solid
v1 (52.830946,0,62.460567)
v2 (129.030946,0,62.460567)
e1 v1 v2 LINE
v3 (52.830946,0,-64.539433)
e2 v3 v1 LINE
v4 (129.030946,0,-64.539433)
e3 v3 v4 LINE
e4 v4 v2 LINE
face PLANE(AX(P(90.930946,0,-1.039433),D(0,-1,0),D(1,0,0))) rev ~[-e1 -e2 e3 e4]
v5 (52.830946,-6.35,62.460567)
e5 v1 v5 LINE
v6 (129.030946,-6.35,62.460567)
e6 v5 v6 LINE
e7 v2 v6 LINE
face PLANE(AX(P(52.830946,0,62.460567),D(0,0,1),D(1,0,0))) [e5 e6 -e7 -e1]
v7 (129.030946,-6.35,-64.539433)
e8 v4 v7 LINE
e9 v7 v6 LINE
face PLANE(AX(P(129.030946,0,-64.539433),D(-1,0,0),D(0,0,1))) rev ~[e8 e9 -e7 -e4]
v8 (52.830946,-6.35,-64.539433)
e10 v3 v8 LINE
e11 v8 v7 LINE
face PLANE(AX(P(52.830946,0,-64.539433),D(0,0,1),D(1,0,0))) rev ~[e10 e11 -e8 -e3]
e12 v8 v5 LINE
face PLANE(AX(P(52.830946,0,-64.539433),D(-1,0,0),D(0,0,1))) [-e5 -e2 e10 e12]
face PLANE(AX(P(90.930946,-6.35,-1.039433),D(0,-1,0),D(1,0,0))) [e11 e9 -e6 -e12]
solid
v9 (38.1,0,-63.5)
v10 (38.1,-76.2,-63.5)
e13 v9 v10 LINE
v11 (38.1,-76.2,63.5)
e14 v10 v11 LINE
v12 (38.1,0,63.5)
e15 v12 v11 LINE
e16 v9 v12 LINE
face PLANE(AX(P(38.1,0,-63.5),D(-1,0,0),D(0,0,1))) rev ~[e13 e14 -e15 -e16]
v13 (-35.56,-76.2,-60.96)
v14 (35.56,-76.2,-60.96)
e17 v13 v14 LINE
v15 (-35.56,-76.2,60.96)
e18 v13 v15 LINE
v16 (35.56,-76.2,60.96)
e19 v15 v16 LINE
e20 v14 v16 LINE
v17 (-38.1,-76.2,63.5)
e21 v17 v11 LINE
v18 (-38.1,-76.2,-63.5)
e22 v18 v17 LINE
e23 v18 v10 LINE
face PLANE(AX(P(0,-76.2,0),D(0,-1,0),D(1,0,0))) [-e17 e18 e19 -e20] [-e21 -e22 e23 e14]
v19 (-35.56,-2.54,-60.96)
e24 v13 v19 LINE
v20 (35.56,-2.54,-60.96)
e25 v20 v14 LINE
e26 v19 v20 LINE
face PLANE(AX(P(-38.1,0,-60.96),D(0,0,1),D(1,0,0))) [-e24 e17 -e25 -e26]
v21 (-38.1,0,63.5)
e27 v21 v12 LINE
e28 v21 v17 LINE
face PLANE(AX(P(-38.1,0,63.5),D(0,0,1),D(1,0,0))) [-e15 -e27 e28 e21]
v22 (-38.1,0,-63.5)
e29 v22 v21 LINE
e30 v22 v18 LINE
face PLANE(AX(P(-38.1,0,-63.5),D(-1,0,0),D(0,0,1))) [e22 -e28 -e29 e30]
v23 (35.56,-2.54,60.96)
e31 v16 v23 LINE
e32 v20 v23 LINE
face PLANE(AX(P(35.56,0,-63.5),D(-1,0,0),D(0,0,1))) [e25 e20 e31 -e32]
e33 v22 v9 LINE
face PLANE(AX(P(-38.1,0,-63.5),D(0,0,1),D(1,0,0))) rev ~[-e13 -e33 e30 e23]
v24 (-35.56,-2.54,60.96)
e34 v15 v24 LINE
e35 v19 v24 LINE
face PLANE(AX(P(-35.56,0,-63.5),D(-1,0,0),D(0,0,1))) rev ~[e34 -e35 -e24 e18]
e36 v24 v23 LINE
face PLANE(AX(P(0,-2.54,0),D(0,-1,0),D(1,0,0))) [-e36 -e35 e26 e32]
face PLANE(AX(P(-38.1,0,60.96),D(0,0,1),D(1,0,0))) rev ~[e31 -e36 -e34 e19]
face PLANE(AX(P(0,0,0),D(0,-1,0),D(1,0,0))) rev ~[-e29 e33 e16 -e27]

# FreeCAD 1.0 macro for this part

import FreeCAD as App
import Part
import Sketcher
Q = App.Units.Quantity


def faces_at(feature, points):
    """Names of the faces that lie closest to the given points."""
    faces = feature.Shape.Faces
    near = lambda p: min(range(len(faces)), key=lambda i: faces[i].distToShape(Part.Vertex(*p))[0])
    return sorted({f"Face{near(p) + 1}" for p in points})

doc = App.newDocument("Part")
body = doc.addObject("PartDesign::Body", "Body")

sketch1 = body.newObject("Sketcher::SketchObject", "Sketch")
sketch1.AttachmentSupport = (doc.getObject("XZ_Plane"), [""])
sketch1.MapMode = "FlatFace"
sketch1.addGeometry(Part.LineSegment(App.Vector(-38, 64, 0), App.Vector(-38, -64, 0)), False)
sketch1.addGeometry(Part.LineSegment(App.Vector(-38, -64, 0), App.Vector(38, -64, 0)), False)
sketch1.addGeometry(Part.LineSegment(App.Vector(38, -64, 0), App.Vector(38, 64, 0)), False)
sketch1.addGeometry(Part.LineSegment(App.Vector(38, 64, 0), App.Vector(-38, 64, 0)), False)
sketch1.addConstraint(Sketcher.Constraint("Coincident", 0, 2, 1, 1))
sketch1.addConstraint(Sketcher.Constraint("Coincident", 1, 2, 2, 1))
sketch1.addConstraint(Sketcher.Constraint("Coincident", 2, 2, 3, 1))
sketch1.addConstraint(Sketcher.Constraint("Coincident", 3, 2, 0, 1))
sketch1.addConstraint(Sketcher.Constraint("Vertical", 0))
sketch1.addConstraint(Sketcher.Constraint("Horizontal", 1))
sketch1.addConstraint(Sketcher.Constraint("Vertical", 2))
sketch1.addConstraint(Sketcher.Constraint("Horizontal", 3))
sketch1.addConstraint(Sketcher.Constraint("Symmetric", 0, 2, 2, 2, -1, 1))
sketch1.addConstraint(Sketcher.Constraint("DistanceX", 1, 1, 1, 2, Q("3 in")))
sketch1.addConstraint(Sketcher.Constraint("DistanceY", 0, 2, 0, 1, Q("5 in")))
pad1 = body.newObject("PartDesign::Pad", "Pad")
pad1.Profile = sketch1
pad1.Length = Q("3 in")
doc.recompute()

thickness = body.newObject("PartDesign::Thickness", "Thickness")
thickness.Base = (pad1, faces_at(pad1, [(0, -76.2, 0)]))
thickness.Value = Q("0.1 in")
thickness.Reversed = True
thickness.Join = "Arc"
body2 = doc.addObject("PartDesign::Body", "Body001")

sketch2 = body2.newObject("Sketcher::SketchObject", "Sketch001")
sketch2.AttachmentSupport = (doc.getObject("XZ_Plane001"), [""])
sketch2.MapMode = "FlatFace"
sketch2.addGeometry(Part.LineSegment(App.Vector(53, 62, 0), App.Vector(53, -65, 0)), False)
sketch2.addGeometry(Part.LineSegment(App.Vector(53, -65, 0), App.Vector(129, -65, 0)), False)
sketch2.addGeometry(Part.LineSegment(App.Vector(129, -65, 0), App.Vector(129, 62, 0)), False)
sketch2.addGeometry(Part.LineSegment(App.Vector(129, 62, 0), App.Vector(53, 62, 0)), False)
sketch2.addConstraint(Sketcher.Constraint("Coincident", 0, 2, 1, 1))
sketch2.addConstraint(Sketcher.Constraint("Coincident", 1, 2, 2, 1))
sketch2.addConstraint(Sketcher.Constraint("Coincident", 2, 2, 3, 1))
sketch2.addConstraint(Sketcher.Constraint("Coincident", 3, 2, 0, 1))
sketch2.addConstraint(Sketcher.Constraint("Vertical", 0))
sketch2.addConstraint(Sketcher.Constraint("Horizontal", 1))
sketch2.addConstraint(Sketcher.Constraint("Vertical", 2))
sketch2.addConstraint(Sketcher.Constraint("Horizontal", 3))
sketch2.addConstraint(Sketcher.Constraint("DistanceX", 1, 1, 1, 2, Q("3 in")))
sketch2.addConstraint(Sketcher.Constraint("DistanceY", 0, 2, 0, 1, Q("5 in")))
sketch2.addConstraint(Sketcher.Constraint("DistanceX", -1, 1, 0, 2, 52.830946))
sketch2.addConstraint(Sketcher.Constraint("DistanceY", 0, 2, -1, 1, 64.539433))
pad2 = body2.newObject("PartDesign::Pad", "Pad001")
pad2.Profile = sketch2
pad2.Length = Q("0.25 in")

doc.recompute()
